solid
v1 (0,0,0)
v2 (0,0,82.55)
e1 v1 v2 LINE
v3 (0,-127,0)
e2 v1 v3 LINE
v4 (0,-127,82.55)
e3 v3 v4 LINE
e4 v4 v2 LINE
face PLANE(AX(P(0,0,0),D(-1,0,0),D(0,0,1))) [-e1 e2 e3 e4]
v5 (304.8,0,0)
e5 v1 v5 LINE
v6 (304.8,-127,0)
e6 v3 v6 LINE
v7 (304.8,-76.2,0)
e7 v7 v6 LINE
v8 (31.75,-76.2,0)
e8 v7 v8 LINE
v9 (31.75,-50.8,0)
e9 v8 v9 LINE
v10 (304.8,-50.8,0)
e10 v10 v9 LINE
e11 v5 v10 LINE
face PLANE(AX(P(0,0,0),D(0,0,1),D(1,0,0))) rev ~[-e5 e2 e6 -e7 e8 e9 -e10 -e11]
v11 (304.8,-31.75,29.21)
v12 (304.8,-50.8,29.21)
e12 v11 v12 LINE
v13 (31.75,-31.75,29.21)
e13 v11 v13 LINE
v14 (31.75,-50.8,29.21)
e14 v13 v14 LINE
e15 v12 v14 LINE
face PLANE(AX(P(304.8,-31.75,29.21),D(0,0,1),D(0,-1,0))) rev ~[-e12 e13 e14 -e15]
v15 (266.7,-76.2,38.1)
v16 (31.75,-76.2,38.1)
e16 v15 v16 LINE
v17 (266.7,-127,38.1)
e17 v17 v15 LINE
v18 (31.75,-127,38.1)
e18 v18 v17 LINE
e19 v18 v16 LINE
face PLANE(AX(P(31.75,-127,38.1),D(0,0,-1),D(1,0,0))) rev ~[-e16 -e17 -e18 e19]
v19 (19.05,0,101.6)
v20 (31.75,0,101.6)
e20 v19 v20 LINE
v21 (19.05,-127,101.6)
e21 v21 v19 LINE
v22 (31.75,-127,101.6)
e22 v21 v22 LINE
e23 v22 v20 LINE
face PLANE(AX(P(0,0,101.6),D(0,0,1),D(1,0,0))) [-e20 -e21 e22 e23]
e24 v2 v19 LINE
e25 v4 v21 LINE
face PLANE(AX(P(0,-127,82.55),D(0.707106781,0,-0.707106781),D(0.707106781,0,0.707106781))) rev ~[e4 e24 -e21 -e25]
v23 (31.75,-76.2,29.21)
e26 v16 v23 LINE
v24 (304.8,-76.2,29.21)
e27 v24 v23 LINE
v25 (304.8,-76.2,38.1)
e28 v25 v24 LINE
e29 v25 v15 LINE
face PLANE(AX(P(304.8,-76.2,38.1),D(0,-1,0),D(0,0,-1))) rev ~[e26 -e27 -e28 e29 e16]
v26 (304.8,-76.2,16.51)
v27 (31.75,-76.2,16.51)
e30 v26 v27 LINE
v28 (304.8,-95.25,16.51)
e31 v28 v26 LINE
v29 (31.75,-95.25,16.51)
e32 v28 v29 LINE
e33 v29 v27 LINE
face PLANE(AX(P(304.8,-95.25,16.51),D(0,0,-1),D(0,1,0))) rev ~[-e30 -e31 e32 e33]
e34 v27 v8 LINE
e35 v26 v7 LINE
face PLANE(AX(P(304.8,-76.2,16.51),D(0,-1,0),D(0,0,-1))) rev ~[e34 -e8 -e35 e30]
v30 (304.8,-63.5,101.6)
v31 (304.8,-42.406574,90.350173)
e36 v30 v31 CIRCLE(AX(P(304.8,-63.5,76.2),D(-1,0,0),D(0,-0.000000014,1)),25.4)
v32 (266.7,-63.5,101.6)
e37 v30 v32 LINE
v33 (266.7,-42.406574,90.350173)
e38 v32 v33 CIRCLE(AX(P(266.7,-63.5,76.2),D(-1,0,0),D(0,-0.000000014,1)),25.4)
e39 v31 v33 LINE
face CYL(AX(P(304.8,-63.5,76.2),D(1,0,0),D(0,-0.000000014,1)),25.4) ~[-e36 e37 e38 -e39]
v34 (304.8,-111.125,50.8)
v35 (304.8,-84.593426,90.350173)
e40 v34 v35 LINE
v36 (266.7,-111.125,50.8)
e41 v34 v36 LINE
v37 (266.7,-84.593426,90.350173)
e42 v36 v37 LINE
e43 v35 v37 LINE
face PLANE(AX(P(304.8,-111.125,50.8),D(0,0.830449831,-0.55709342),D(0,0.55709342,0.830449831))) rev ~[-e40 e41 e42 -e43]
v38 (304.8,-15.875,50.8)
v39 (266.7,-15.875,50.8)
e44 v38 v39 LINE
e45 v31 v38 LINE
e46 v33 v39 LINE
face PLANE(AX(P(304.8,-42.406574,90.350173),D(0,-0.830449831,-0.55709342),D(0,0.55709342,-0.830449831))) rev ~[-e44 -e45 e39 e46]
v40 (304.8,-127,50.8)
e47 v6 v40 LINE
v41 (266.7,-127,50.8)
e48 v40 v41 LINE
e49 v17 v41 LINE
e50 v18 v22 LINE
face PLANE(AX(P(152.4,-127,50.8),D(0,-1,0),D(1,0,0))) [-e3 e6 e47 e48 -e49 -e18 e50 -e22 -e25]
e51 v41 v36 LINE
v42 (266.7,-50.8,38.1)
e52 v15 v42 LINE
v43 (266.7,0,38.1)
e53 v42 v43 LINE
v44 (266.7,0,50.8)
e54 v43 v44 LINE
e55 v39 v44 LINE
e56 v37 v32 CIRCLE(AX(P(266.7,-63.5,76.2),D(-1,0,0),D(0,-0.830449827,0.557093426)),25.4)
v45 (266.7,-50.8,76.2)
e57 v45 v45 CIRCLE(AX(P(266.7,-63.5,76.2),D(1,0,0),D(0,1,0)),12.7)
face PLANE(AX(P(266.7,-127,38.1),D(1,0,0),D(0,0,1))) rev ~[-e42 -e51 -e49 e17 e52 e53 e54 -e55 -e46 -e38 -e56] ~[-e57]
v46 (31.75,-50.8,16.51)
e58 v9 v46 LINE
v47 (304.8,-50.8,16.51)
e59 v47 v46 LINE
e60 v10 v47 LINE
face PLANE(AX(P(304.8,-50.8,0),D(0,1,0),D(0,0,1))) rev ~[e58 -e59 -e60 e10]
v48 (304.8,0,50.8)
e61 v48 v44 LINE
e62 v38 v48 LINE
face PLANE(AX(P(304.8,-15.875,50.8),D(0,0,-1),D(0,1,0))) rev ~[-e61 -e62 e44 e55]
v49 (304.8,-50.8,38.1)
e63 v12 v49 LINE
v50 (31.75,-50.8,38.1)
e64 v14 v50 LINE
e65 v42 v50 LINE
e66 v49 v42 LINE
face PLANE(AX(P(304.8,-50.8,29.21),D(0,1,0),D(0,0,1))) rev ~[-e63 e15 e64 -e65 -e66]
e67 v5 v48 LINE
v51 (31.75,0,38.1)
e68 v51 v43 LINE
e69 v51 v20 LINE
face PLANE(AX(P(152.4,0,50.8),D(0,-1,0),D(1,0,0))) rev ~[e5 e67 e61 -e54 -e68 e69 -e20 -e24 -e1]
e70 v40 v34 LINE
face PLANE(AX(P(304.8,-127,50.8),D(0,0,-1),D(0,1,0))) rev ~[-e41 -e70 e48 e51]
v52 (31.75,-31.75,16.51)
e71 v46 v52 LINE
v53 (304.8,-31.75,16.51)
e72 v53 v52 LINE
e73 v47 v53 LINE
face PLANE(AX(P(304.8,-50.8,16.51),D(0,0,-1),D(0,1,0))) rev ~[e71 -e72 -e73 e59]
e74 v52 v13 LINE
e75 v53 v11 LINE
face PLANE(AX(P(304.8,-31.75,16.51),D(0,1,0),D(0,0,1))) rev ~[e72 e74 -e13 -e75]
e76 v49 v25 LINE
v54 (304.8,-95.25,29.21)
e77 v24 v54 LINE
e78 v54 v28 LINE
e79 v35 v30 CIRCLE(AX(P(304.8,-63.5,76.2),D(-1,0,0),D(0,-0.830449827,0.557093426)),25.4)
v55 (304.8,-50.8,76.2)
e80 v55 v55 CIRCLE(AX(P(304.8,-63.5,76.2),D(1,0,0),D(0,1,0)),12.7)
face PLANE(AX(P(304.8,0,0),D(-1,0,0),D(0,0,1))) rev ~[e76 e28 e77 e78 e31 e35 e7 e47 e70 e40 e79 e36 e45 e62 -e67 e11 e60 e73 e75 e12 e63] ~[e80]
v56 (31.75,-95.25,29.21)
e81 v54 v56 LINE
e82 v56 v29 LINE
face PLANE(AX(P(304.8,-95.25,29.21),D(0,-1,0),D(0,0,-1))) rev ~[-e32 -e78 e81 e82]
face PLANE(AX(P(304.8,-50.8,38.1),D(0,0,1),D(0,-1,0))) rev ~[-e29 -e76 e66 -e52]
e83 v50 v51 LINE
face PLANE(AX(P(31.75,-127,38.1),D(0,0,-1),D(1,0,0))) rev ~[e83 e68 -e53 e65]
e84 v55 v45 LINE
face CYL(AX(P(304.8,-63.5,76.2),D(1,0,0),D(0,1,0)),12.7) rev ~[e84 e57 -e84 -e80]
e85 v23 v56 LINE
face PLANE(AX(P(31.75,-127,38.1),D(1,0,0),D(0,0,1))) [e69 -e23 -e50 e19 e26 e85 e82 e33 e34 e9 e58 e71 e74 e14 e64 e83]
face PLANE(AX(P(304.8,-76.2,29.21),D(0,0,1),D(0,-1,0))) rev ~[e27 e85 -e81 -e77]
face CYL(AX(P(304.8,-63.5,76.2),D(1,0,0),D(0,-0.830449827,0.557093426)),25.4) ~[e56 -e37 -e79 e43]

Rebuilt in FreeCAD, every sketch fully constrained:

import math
import FreeCAD as App
import Part
import Sketcher
from FreeCAD import Vector
Q = App.Units.Quantity

doc = App.newDocument("Part")
body = doc.addObject("PartDesign::Body", "Body")

# Sketch on XZ plane
sketch1 = doc.addObject("Sketcher::SketchObject", "Sketch")
body.addObject(sketch1)
sketch1.AttachmentSupport = (doc.XZ_Plane, [""])
sketch1.MapMode = "FlatFace"
sketch1.addGeometry(Part.LineSegment(Vector(0, 102, 0), Vector(0, 0, 0)), False)
sketch1.addGeometry(Part.LineSegment(Vector(0, 0, 0), Vector(305, 0, 0)), False)
sketch1.addGeometry(Part.LineSegment(Vector(305, 0, 0), Vector(305, 102, 0)), False)
sketch1.addGeometry(Part.LineSegment(Vector(305, 102, 0), Vector(0, 102, 0)), False)
sketch1.addConstraint(Sketcher.Constraint("Coincident", 0, 2, 1, 1))
sketch1.addConstraint(Sketcher.Constraint("Coincident", 1, 2, 2, 1))
sketch1.addConstraint(Sketcher.Constraint("Coincident", 2, 2, 3, 1))
sketch1.addConstraint(Sketcher.Constraint("Coincident", 3, 2, 0, 1))
sketch1.addConstraint(Sketcher.Constraint("Vertical", 0))
sketch1.addConstraint(Sketcher.Constraint("Horizontal", 1))
sketch1.addConstraint(Sketcher.Constraint("Vertical", 2))
sketch1.addConstraint(Sketcher.Constraint("Horizontal", 3))
sketch1.addConstraint(Sketcher.Constraint("Coincident", 0, 2, -1, 1))
sketch1.addConstraint(Sketcher.Constraint("DistanceX", 1, 1, 1, 2, Q("12 in")))
sketch1.addConstraint(Sketcher.Constraint("DistanceY", 0, 2, 0, 1, Q("4 in")))
pad1 = doc.addObject("PartDesign::Pad", "Pad")
body.addObject(pad1)
pad1.Profile = sketch1
pad1.Length = Q("5 in")

# Sketch on XZ plane
sketch2 = doc.addObject("Sketcher::SketchObject", "Sketch001")
body.addObject(sketch2)
sketch2.AttachmentSupport = (doc.XZ_Plane, [""])
sketch2.MapMode = "FlatFace"
sketch2.AttachmentOffset = App.Placement(Vector(0, 0, 5 * 25.4), App.Rotation())
sketch2.addGeometry(Part.LineSegment(Vector(32, 102, 0), Vector(32, 38, 0)), False)
sketch2.addGeometry(Part.LineSegment(Vector(32, 38, 0), Vector(267, 38, 0)), False)
sketch2.addGeometry(Part.LineSegment(Vector(267, 38, 0), Vector(267, 102, 0)), False)
sketch2.addGeometry(Part.LineSegment(Vector(267, 102, 0), Vector(32, 102, 0)), False)
sketch2.addConstraint(Sketcher.Constraint("Coincident", 0, 2, 1, 1))
sketch2.addConstraint(Sketcher.Constraint("Coincident", 1, 2, 2, 1))
sketch2.addConstraint(Sketcher.Constraint("Coincident", 2, 2, 3, 1))
sketch2.addConstraint(Sketcher.Constraint("Coincident", 3, 2, 0, 1))
sketch2.addConstraint(Sketcher.Constraint("Vertical", 0))
sketch2.addConstraint(Sketcher.Constraint("Horizontal", 1))
sketch2.addConstraint(Sketcher.Constraint("Vertical", 2))
sketch2.addConstraint(Sketcher.Constraint("Horizontal", 3))
sketch2.addConstraint(Sketcher.Constraint("DistanceY", 0, 2, 0, 1, Q("2.5 in")))
sketch2.addConstraint(Sketcher.Constraint("DistanceY", -1, 1, 2, 2, Q("4 in")))
sketch2.addConstraint(Sketcher.Constraint("DistanceX", 1, 1, 1, 2, Q("9.25 in")))
sketch2.addConstraint(Sketcher.Constraint("DistanceX", -1, 1, 1, 2, Q("10.5 in")))
pocket1 = doc.addObject("PartDesign::Pocket", "Pocket")
body.addObject(pocket1)
pocket1.Profile = sketch2
pocket1.Type = "ThroughAll"

# Sketch on XZ plane
sketch3 = doc.addObject("Sketcher::SketchObject", "Sketch002")
body.addObject(sketch3)
sketch3.AttachmentSupport = (doc.XZ_Plane, [""])
sketch3.MapMode = "FlatFace"
sketch3.AttachmentOffset = App.Placement(Vector(0, 0, 5 * 25.4), App.Rotation())
sketch3.addGeometry(Part.LineSegment(Vector(19, 102, 0), Vector(0, 102, 0)), False)
sketch3.addGeometry(Part.LineSegment(Vector(0, 102, 0), Vector(0, 83, 0)), False)
sketch3.addGeometry(Part.LineSegment(Vector(0, 83, 0), Vector(19, 102, 0)), False)
sketch3.addConstraint(Sketcher.Constraint("Coincident", 0, 2, 1, 1))
sketch3.addConstraint(Sketcher.Constraint("Coincident", 1, 2, 2, 1))
sketch3.addConstraint(Sketcher.Constraint("Coincident", 2, 2, 0, 1))
sketch3.addConstraint(Sketcher.Constraint("Horizontal", 0))
sketch3.addConstraint(Sketcher.Constraint("Vertical", 1))
sketch3.addConstraint(Sketcher.Constraint("PointOnObject", 0, 2, -2))
sketch3.addConstraint(Sketcher.Constraint("Equal", 0, 1))
sketch3.addConstraint(Sketcher.Constraint("DistanceY", -1, 1, 0, 2, Q("4 in")))
sketch3.addConstraint(Sketcher.Constraint("DistanceX", 0, 2, 0, 1, Q("0.75 in")))
pocket2 = doc.addObject("PartDesign::Pocket", "Pocket001")
body.addObject(pocket2)
pocket2.Profile = sketch3
pocket2.Type = "ThroughAll"

# Sketch on YZ plane
sketch4 = doc.addObject("Sketcher::SketchObject", "Sketch003")
body.addObject(sketch4)
sketch4.AttachmentSupport = (doc.YZ_Plane, [""])
sketch4.MapMode = "FlatFace"
sketch4.AttachmentOffset = App.Placement(Vector(0, 0, 12 * 25.4), App.Rotation())
sketch4.addGeometry(Part.LineSegment(Vector(-127, 102, 0), Vector(-127, 51, 0)), False)
sketch4.addGeometry(Part.LineSegment(Vector(-127, 51, 0), Vector(-111, 51, 0)), False)
sketch4.addGeometry(Part.LineSegment(Vector(-111, 51, 0), Vector(-85, 90, 0)), False)
sketch4.addGeometry(Part.ArcOfCircle(Part.Circle(Vector(-64, 76, 0), Vector(0, 0, 1), 25), math.radians(90), math.radians(146)), False)
sketch4.addGeometry(Part.LineSegment(Vector(-64, 102, 0), Vector(-127, 102, 0)), False)
sketch4.addGeometry(Part.LineSegment(Vector(-16, 51, 0), Vector(0, 51, 0)), False)
sketch4.addGeometry(Part.LineSegment(Vector(0, 51, 0), Vector(0, 102, 0)), False)
sketch4.addGeometry(Part.LineSegment(Vector(0, 102, 0), Vector(-64, 102, 0)), False)
sketch4.addGeometry(Part.ArcOfCircle(Part.Circle(Vector(-63, 76, 0), Vector(0, 0, 1), 25), math.radians(34), math.radians(90)), False)
sketch4.addGeometry(Part.LineSegment(Vector(-42, 90, 0), Vector(-16, 51, 0)), False)
sketch4.addGeometry(Part.Circle(Vector(-64, 76, 0), Vector(0, 0, 1), 13), False)
sketch4.addConstraint(Sketcher.Constraint("Coincident", 0, 2, 1, 1))
sketch4.addConstraint(Sketcher.Constraint("Coincident", 1, 2, 2, 1))
sketch4.addConstraint(Sketcher.Constraint("Tangent", 2, 2, 3, 2))
sketch4.addConstraint(Sketcher.Constraint("Tangent", 3, 1, 4, 1))
sketch4.addConstraint(Sketcher.Constraint("Coincident", 4, 2, 0, 1))
sketch4.addConstraint(Sketcher.Constraint("Coincident", 5, 2, 6, 1))
sketch4.addConstraint(Sketcher.Constraint("Coincident", 6, 2, 7, 1))
sketch4.addConstraint(Sketcher.Constraint("Tangent", 7, 2, 8, 2))
sketch4.addConstraint(Sketcher.Constraint("Tangent", 8, 1, 9, 1))
sketch4.addConstraint(Sketcher.Constraint("Coincident", 9, 2, 5, 1))
sketch4.addConstraint(Sketcher.Constraint("Vertical", 0))
sketch4.addConstraint(Sketcher.Constraint("Horizontal", 1))
sketch4.addConstraint(Sketcher.Constraint("Horizontal", 4))
sketch4.addConstraint(Sketcher.Constraint("Horizontal", 5))
sketch4.addConstraint(Sketcher.Constraint("Vertical", 6))
sketch4.addConstraint(Sketcher.Constraint("Horizontal", 7))
sketch4.addConstraint(Sketcher.Constraint("Coincident", 8, 3, 3, 3))
sketch4.addConstraint(Sketcher.Constraint("Coincident", 10, 3, 3, 3))
sketch4.addConstraint(Sketcher.Constraint("Equal", 3, 8))
sketch4.addConstraint(Sketcher.Constraint("PointOnObject", 5, 2, -2))
sketch4.addConstraint(Sketcher.Constraint("Horizontal", 1, 2, 5, 2))
sketch4.addConstraint(Sketcher.Constraint("Horizontal", 2, 2, 8, 1))
sketch4.addConstraint(Sketcher.Constraint("Equal", 1, 5))
sketch4.addConstraint(Sketcher.Constraint("Diameter", 10, Q("1 in")))
sketch4.addConstraint(Sketcher.Constraint("Radius", 3, Q("1 in")))
sketch4.addConstraint(Sketcher.Constraint("DistanceY", 0, 2, 0, 1, Q("2 in")))
sketch4.addConstraint(Sketcher.Constraint("DistanceX", 4, 2, 4, 1, Q("2.5 in")))
sketch4.addConstraint(Sketcher.Constraint("DistanceY", -1, 1, 3, 3, Q("3 in")))
sketch4.addConstraint(Sketcher.Constraint("DistanceX", 1, 1, 1, 2, Q("0.625 in")))
pocket3 = doc.addObject("PartDesign::Pocket", "Pocket002")
body.addObject(pocket3)
pocket3.Profile = sketch4
pocket3.Length = Q("1.5 in")

# Sketch on YZ plane
sketch5 = doc.addObject("Sketcher::SketchObject", "Sketch004")
body.addObject(sketch5)
sketch5.AttachmentSupport = (doc.YZ_Plane, [""])
sketch5.MapMode = "FlatFace"
sketch5.AttachmentOffset = App.Placement(Vector(0, 0, 12 * 25.4), App.Rotation())
sketch5.addGeometry(Part.LineSegment(Vector(-76, 17, 0), Vector(-76, 0, 0)), False)
sketch5.addGeometry(Part.LineSegment(Vector(-76, 0, 0), Vector(-51, 0, 0)), False)
sketch5.addGeometry(Part.LineSegment(Vector(-51, 0, 0), Vector(-51, 17, 0)), False)
sketch5.addGeometry(Part.LineSegment(Vector(-51, 17, 0), Vector(-32, 17, 0)), False)
sketch5.addGeometry(Part.LineSegment(Vector(-32, 17, 0), Vector(-32, 29, 0)), False)
sketch5.addGeometry(Part.LineSegment(Vector(-32, 29, 0), Vector(-51, 29, 0)), False)
sketch5.addGeometry(Part.LineSegment(Vector(-51, 29, 0), Vector(-51, 38, 0)), False)
sketch5.addGeometry(Part.LineSegment(Vector(-51, 38, 0), Vector(-76, 38, 0)), False)
sketch5.addGeometry(Part.LineSegment(Vector(-76, 38, 0), Vector(-76, 29, 0)), False)
sketch5.addGeometry(Part.LineSegment(Vector(-76, 29, 0), Vector(-95, 29, 0)), False)
sketch5.addGeometry(Part.LineSegment(Vector(-95, 29, 0), Vector(-95, 17, 0)), False)
sketch5.addGeometry(Part.LineSegment(Vector(-95, 17, 0), Vector(-76, 17, 0)), False)
sketch5.addConstraint(Sketcher.Constraint("Coincident", 0, 2, 1, 1))
sketch5.addConstraint(Sketcher.Constraint("Coincident", 1, 2, 2, 1))
sketch5.addConstraint(Sketcher.Constraint("Coincident", 2, 2, 3, 1))
sketch5.addConstraint(Sketcher.Constraint("Coincident", 3, 2, 4, 1))
sketch5.addConstraint(Sketcher.Constraint("Coincident", 4, 2, 5, 1))
sketch5.addConstraint(Sketcher.Constraint("Coincident", 5, 2, 6, 1))
sketch5.addConstraint(Sketcher.Constraint("Coincident", 6, 2, 7, 1))
sketch5.addConstraint(Sketcher.Constraint("Coincident", 7, 2, 8, 1))
sketch5.addConstraint(Sketcher.Constraint("Coincident", 8, 2, 9, 1))
sketch5.addConstraint(Sketcher.Constraint("Coincident", 9, 2, 10, 1))
sketch5.addConstraint(Sketcher.Constraint("Coincident", 10, 2, 11, 1))
sketch5.addConstraint(Sketcher.Constraint("Coincident", 11, 2, 0, 1))
sketch5.addConstraint(Sketcher.Constraint("Vertical", 0))
sketch5.addConstraint(Sketcher.Constraint("Horizontal", 1))
sketch5.addConstraint(Sketcher.Constraint("Vertical", 2))
sketch5.addConstraint(Sketcher.Constraint("Horizontal", 3))
sketch5.addConstraint(Sketcher.Constraint("Vertical", 4))
sketch5.addConstraint(Sketcher.Constraint("Horizontal", 5))
sketch5.addConstraint(Sketcher.Constraint("Vertical", 6))
sketch5.addConstraint(Sketcher.Constraint("Horizontal", 7))
sketch5.addConstraint(Sketcher.Constraint("Vertical", 8))
sketch5.addConstraint(Sketcher.Constraint("Horizontal", 9))
sketch5.addConstraint(Sketcher.Constraint("Vertical", 10))
sketch5.addConstraint(Sketcher.Constraint("Horizontal", 11))
sketch5.addConstraint(Sketcher.Constraint("PointOnObject", 0, 2, -1))
sketch5.addConstraint(Sketcher.Constraint("Horizontal", 5, 2, 8, 2))
sketch5.addConstraint(Sketcher.Constraint("Horizontal", 3, 2, 10, 2))
sketch5.addConstraint(Sketcher.Constraint("Vertical", 2, 2, 5, 2))
sketch5.addConstraint(Sketcher.Constraint("Vertical", 0, 2, 7, 2))
sketch5.addConstraint(Sketcher.Constraint("Equal", 5, 9))
sketch5.addConstraint(Sketcher.Constraint("DistanceX", 1, 1, 1, 2, Q("1 in")))
sketch5.addConstraint(Sketcher.Constraint("DistanceY", 4, 1, 4, 2, Q("0.5 in")))
sketch5.addConstraint(Sketcher.Constraint("DistanceX", 0, 2, -1, 1, Q("3 in")))
sketch5.addConstraint(Sketcher.Constraint("DistanceX", 3, 1, 3, 2, Q("0.75 in")))
sketch5.addConstraint(Sketcher.Constraint("DistanceY", 0, 2, 0, 1, Q("0.65 in")))
sketch5.addConstraint(Sketcher.Constraint("DistanceY", 6, 1, 6, 2, Q("0.35 in")))
pocket4 = doc.addObject("PartDesign::Pocket", "Pocket003")
body.addObject(pocket4)
pocket4.Profile = sketch5
pocket4.Length = Q("10.75 in")

doc.recompute()
